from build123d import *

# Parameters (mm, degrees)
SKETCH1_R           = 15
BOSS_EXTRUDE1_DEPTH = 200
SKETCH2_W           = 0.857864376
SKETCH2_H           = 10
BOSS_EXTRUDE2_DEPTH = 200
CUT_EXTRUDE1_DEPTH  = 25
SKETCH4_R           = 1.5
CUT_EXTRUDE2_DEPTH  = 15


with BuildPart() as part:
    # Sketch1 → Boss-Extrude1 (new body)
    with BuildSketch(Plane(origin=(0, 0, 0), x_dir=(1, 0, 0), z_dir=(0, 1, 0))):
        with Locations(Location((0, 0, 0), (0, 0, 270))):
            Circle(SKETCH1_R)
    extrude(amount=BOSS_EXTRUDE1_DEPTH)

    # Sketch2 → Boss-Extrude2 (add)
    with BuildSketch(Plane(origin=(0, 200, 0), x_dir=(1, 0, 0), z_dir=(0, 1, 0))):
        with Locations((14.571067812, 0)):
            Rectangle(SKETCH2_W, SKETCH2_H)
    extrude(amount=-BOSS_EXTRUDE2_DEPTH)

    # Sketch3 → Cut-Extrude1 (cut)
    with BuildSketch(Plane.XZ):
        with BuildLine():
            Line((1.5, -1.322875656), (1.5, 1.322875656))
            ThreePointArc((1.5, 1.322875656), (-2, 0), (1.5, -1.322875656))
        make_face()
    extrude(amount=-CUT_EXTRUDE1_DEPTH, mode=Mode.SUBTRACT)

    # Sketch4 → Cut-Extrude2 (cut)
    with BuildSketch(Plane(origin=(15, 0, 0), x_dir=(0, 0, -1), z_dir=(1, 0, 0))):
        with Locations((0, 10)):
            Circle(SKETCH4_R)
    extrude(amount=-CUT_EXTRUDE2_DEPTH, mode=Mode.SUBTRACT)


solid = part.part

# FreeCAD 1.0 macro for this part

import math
import FreeCAD as App
import Part
import Sketcher
from FreeCAD import Vector
Q = App.Units.Quantity


def add_polygon(sketch, points):
    """Adds a closed chain of lines whose ends are joined by coincident constraints."""
    first, n = sketch.GeometryCount, len(points)
    for a, b in zip(points, points[1:] + points[:1]):
        sketch.addGeometry(Part.LineSegment(App.Vector(*a, 0), App.Vector(*b, 0)), False)
    for i in range(n):
        sketch.addConstraint(Sketcher.Constraint("Coincident", first + i, 2, first + (i + 1) % n, 1))

doc = App.newDocument("Part")
body = doc.addObject("PartDesign::Body", "Body")

# Sketch on XZ plane
sketch1 = body.newObject("Sketcher::SketchObject", "Sketch")
sketch1.AttachmentSupport = (doc.getObject("XZ_Plane"), [""])
sketch1.MapMode = "FlatFace"
sketch1.addGeometry(Part.Circle(Vector(0, 0, 0), Vector(0, 0, 1), 15), False)
sketch1.addConstraint(Sketcher.Constraint("Coincident", 0, 3, -1, 1))
sketch1.addConstraint(Sketcher.Constraint("Diameter", 0, Q("30 mm")))
pad1 = body.newObject("PartDesign::Pad", "Pad")
pad1.Profile = sketch1
pad1.Length = 200
pad1.Reversed = True

# Sketch on XZ plane
sketch2 = body.newObject("Sketcher::SketchObject", "Sketch001")
sketch2.AttachmentSupport = (doc.getObject("XZ_Plane"), [""])
sketch2.MapMode = "FlatFace"
sketch2.AttachmentOffset = App.Placement(Vector(0, 0, -200), App.Rotation())
add_polygon(sketch2, [(14.1, -5), (14.1, 5), (15, 5), (15, -5)])  # lines 0-3
sketch2.addConstraint(Sketcher.Constraint("Vertical", 0))
sketch2.addConstraint(Sketcher.Constraint("Horizontal", 1))
sketch2.addConstraint(Sketcher.Constraint("Vertical", 2))
sketch2.addConstraint(Sketcher.Constraint("Horizontal", 3))
sketch2.addConstraint(Sketcher.Constraint("DistanceY", 0, 1, 0, 2, Q("10 mm")))
sketch2.addConstraint(Sketcher.Constraint("DistanceY", -1, 1, 0, 2, Q("5 mm")))
sketch2.addConstraint(Sketcher.Constraint("DistanceX", -1, 1, 1, 2, Q("15 mm")))
sketch2.addConstraint(Sketcher.Constraint("DistanceX", 1, 1, 1, 2, Q("0.857864 mm")))
pad2 = body.newObject("PartDesign::Pad", "Pad001")
pad2.Profile = sketch2
pad2.Length = 200

# Sketch on XZ plane
sketch3 = body.newObject("Sketcher::SketchObject", "Sketch002")
sketch3.AttachmentSupport = (doc.getObject("XZ_Plane"), [""])
sketch3.MapMode = "FlatFace"
sketch3.addGeometry(Part.LineSegment(Vector(1.5, -1.3, 0), Vector(1.5, 1.3, 0)), False)
sketch3.addGeometry(Part.ArcOfCircle(Part.Circle(Vector(0, 0, 0), Vector(0, 0, 1), 2), math.radians(41), math.radians(319)), False)
sketch3.addConstraint(Sketcher.Constraint("Coincident", 0, 1, 1, 2))
sketch3.addConstraint(Sketcher.Constraint("Coincident", 1, 1, 0, 2))
sketch3.addConstraint(Sketcher.Constraint("Vertical", 0))
sketch3.addConstraint(Sketcher.Constraint("Coincident", 1, 3, -1, 1))
sketch3.addConstraint(Sketcher.Constraint("Radius", 1, Q("2 mm")))
sketch3.addConstraint(Sketcher.Constraint("DistanceX", -1, 1, 0, 1, Q("1.5 mm")))
pocket1 = body.newObject("PartDesign::Pocket", "Pocket")
pocket1.Profile = sketch3
pocket1.Length = 25

# Sketch on YZ plane
sketch4 = body.newObject("Sketcher::SketchObject", "Sketch003")
sketch4.AttachmentSupport = (doc.getObject("YZ_Plane"), [""])
sketch4.MapMode = "FlatFace"
sketch4.AttachmentOffset = App.Placement(Vector(0, 0, 15), App.Rotation())
sketch4.addGeometry(Part.Circle(Vector(10, 0, 0), Vector(0, 0, 1), 1.5), False)
sketch4.addConstraint(Sketcher.Constraint("PointOnObject", 0, 3, -1))
sketch4.addConstraint(Sketcher.Constraint("Diameter", 0, Q("3 mm")))
sketch4.addConstraint(Sketcher.Constraint("DistanceX", -1, 1, 0, 3, Q("10 mm")))
pocket2 = body.newObject("PartDesign::Pocket", "Pocket001")
pocket2.Profile = sketch4
pocket2.Length = 15

doc.recompute()
